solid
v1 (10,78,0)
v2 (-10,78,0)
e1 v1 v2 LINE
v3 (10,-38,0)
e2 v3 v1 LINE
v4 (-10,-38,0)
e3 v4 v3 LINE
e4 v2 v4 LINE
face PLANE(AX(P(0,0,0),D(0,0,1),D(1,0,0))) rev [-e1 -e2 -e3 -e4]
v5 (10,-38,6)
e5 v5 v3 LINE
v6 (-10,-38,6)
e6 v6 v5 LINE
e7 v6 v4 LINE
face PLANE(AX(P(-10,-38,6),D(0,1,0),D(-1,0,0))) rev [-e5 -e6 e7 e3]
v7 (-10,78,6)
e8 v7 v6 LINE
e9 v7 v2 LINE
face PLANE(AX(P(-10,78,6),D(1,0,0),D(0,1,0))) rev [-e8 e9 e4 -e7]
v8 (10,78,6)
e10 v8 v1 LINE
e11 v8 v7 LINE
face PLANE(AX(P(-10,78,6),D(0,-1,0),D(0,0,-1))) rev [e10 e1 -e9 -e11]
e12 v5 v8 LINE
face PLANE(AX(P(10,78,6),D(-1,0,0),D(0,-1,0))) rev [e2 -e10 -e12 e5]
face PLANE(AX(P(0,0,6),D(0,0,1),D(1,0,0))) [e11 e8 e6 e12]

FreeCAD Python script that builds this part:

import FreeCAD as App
import Part
import Sketcher

V = App.Vector

doc = App.newDocument("Part")
body = doc.addObject("PartDesign::Body", "Body")

# Sketch on XY plane
sketch1 = doc.addObject("Sketcher::SketchObject", "Sketch")
body.addObject(sketch1)
sketch1.AttachmentSupport = (doc.XY_Plane, [""])
sketch1.MapMode = "FlatFace"
sketch1.addGeometry(Part.LineSegment(V(-10, 78, 0), V(-10, -38, 0)), False)
sketch1.addGeometry(Part.LineSegment(V(-10, -38, 0), V(10, -38, 0)), False)
sketch1.addGeometry(Part.LineSegment(V(10, -38, 0), V(10, 78, 0)), False)
sketch1.addGeometry(Part.LineSegment(V(10, 78, 0), V(-10, 78, 0)), False)
sketch1.addConstraint(Sketcher.Constraint("Coincident", 0, 2, 1, 1))
sketch1.addConstraint(Sketcher.Constraint("Coincident", 1, 2, 2, 1))
sketch1.addConstraint(Sketcher.Constraint("Coincident", 2, 2, 3, 1))
sketch1.addConstraint(Sketcher.Constraint("Coincident", 3, 2, 0, 1))
sketch1.addConstraint(Sketcher.Constraint("Vertical", 0))
sketch1.addConstraint(Sketcher.Constraint("Horizontal", 1))
sketch1.addConstraint(Sketcher.Constraint("Vertical", 2))
sketch1.addConstraint(Sketcher.Constraint("Horizontal", 3))
sketch1.addConstraint(Sketcher.Constraint("DistanceX", 1, 1, 1, 2, 20.0))
sketch1.addConstraint(Sketcher.Constraint("DistanceY", 0, 2, 0, 1, 116.0))
sketch1.addConstraint(Sketcher.Constraint("DistanceX", 0, 2, -1, 1, 10.0))
sketch1.addConstraint(Sketcher.Constraint("DistanceY", 0, 2, -1, 1, 38.0))
pad1 = doc.addObject("PartDesign::Pad", "Pad")
body.addObject(pad1)
pad1.Profile = sketch1
pad1.Length = 6

doc.recompute()
